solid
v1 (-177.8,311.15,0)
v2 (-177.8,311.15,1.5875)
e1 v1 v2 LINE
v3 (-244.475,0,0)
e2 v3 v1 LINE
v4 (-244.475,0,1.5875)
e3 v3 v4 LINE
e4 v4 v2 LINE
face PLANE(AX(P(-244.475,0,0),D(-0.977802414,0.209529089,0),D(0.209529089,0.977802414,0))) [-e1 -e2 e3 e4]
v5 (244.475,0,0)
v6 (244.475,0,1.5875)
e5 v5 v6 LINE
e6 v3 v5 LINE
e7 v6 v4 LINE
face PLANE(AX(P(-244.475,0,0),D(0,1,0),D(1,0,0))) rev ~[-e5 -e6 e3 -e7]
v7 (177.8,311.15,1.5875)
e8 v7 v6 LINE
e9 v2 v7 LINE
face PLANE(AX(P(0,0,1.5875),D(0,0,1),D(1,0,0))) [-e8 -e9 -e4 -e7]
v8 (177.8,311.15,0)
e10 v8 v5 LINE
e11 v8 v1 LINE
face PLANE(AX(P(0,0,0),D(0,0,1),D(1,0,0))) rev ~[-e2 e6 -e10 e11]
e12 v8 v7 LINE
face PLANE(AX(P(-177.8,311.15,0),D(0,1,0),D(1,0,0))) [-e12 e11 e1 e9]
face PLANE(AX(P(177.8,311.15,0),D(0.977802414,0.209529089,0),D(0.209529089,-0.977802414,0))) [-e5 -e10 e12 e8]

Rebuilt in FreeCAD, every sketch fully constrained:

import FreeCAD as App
import Part
import Sketcher
Q = App.Units.Quantity


def add_polygon(sketch, points):
    """Adds a closed chain of lines whose ends are joined by coincident constraints."""
    first, n = sketch.GeometryCount, len(points)
    for a, b in zip(points, points[1:] + points[:1]):
        sketch.addGeometry(Part.LineSegment(App.Vector(*a, 0), App.Vector(*b, 0)), False)
    for i in range(n):
        sketch.addConstraint(Sketcher.Constraint("Coincident", first + i, 2, first + (i + 1) % n, 1))

doc = App.newDocument("Part")
body = doc.addObject("PartDesign::Body", "Body")

sketch1 = body.newObject("Sketcher::SketchObject", "Sketch")
sketch1.AttachmentSupport = (doc.getObject("XY_Plane"), [""])
sketch1.MapMode = "FlatFace"
add_polygon(sketch1, [(-178, 311), (-244, 0), (244, 0), (178, 311)])
sketch1.addConstraint(Sketcher.Constraint("Horizontal", 1))
sketch1.addConstraint(Sketcher.Constraint("Horizontal", 3))
sketch1.addConstraint(Sketcher.Constraint("Symmetric", 0, 2, 1, 2, -1, 1))
sketch1.addConstraint(Sketcher.Constraint("Equal", 0, 2))
sketch1.addConstraint(Sketcher.Constraint("DistanceX", 3, 2, 3, 1, Q("14 in")))
sketch1.addConstraint(Sketcher.Constraint("DistanceX", 1, 1, 1, 2, Q("19.25 in")))
sketch1.addConstraint(Sketcher.Constraint("DistanceY", -1, 1, 2, 2, Q("12.25 in")))
pad1 = body.newObject("PartDesign::Pad", "Pad")
pad1.Profile = sketch1
pad1.Length = Q("0.0625 in")

doc.recompute()
